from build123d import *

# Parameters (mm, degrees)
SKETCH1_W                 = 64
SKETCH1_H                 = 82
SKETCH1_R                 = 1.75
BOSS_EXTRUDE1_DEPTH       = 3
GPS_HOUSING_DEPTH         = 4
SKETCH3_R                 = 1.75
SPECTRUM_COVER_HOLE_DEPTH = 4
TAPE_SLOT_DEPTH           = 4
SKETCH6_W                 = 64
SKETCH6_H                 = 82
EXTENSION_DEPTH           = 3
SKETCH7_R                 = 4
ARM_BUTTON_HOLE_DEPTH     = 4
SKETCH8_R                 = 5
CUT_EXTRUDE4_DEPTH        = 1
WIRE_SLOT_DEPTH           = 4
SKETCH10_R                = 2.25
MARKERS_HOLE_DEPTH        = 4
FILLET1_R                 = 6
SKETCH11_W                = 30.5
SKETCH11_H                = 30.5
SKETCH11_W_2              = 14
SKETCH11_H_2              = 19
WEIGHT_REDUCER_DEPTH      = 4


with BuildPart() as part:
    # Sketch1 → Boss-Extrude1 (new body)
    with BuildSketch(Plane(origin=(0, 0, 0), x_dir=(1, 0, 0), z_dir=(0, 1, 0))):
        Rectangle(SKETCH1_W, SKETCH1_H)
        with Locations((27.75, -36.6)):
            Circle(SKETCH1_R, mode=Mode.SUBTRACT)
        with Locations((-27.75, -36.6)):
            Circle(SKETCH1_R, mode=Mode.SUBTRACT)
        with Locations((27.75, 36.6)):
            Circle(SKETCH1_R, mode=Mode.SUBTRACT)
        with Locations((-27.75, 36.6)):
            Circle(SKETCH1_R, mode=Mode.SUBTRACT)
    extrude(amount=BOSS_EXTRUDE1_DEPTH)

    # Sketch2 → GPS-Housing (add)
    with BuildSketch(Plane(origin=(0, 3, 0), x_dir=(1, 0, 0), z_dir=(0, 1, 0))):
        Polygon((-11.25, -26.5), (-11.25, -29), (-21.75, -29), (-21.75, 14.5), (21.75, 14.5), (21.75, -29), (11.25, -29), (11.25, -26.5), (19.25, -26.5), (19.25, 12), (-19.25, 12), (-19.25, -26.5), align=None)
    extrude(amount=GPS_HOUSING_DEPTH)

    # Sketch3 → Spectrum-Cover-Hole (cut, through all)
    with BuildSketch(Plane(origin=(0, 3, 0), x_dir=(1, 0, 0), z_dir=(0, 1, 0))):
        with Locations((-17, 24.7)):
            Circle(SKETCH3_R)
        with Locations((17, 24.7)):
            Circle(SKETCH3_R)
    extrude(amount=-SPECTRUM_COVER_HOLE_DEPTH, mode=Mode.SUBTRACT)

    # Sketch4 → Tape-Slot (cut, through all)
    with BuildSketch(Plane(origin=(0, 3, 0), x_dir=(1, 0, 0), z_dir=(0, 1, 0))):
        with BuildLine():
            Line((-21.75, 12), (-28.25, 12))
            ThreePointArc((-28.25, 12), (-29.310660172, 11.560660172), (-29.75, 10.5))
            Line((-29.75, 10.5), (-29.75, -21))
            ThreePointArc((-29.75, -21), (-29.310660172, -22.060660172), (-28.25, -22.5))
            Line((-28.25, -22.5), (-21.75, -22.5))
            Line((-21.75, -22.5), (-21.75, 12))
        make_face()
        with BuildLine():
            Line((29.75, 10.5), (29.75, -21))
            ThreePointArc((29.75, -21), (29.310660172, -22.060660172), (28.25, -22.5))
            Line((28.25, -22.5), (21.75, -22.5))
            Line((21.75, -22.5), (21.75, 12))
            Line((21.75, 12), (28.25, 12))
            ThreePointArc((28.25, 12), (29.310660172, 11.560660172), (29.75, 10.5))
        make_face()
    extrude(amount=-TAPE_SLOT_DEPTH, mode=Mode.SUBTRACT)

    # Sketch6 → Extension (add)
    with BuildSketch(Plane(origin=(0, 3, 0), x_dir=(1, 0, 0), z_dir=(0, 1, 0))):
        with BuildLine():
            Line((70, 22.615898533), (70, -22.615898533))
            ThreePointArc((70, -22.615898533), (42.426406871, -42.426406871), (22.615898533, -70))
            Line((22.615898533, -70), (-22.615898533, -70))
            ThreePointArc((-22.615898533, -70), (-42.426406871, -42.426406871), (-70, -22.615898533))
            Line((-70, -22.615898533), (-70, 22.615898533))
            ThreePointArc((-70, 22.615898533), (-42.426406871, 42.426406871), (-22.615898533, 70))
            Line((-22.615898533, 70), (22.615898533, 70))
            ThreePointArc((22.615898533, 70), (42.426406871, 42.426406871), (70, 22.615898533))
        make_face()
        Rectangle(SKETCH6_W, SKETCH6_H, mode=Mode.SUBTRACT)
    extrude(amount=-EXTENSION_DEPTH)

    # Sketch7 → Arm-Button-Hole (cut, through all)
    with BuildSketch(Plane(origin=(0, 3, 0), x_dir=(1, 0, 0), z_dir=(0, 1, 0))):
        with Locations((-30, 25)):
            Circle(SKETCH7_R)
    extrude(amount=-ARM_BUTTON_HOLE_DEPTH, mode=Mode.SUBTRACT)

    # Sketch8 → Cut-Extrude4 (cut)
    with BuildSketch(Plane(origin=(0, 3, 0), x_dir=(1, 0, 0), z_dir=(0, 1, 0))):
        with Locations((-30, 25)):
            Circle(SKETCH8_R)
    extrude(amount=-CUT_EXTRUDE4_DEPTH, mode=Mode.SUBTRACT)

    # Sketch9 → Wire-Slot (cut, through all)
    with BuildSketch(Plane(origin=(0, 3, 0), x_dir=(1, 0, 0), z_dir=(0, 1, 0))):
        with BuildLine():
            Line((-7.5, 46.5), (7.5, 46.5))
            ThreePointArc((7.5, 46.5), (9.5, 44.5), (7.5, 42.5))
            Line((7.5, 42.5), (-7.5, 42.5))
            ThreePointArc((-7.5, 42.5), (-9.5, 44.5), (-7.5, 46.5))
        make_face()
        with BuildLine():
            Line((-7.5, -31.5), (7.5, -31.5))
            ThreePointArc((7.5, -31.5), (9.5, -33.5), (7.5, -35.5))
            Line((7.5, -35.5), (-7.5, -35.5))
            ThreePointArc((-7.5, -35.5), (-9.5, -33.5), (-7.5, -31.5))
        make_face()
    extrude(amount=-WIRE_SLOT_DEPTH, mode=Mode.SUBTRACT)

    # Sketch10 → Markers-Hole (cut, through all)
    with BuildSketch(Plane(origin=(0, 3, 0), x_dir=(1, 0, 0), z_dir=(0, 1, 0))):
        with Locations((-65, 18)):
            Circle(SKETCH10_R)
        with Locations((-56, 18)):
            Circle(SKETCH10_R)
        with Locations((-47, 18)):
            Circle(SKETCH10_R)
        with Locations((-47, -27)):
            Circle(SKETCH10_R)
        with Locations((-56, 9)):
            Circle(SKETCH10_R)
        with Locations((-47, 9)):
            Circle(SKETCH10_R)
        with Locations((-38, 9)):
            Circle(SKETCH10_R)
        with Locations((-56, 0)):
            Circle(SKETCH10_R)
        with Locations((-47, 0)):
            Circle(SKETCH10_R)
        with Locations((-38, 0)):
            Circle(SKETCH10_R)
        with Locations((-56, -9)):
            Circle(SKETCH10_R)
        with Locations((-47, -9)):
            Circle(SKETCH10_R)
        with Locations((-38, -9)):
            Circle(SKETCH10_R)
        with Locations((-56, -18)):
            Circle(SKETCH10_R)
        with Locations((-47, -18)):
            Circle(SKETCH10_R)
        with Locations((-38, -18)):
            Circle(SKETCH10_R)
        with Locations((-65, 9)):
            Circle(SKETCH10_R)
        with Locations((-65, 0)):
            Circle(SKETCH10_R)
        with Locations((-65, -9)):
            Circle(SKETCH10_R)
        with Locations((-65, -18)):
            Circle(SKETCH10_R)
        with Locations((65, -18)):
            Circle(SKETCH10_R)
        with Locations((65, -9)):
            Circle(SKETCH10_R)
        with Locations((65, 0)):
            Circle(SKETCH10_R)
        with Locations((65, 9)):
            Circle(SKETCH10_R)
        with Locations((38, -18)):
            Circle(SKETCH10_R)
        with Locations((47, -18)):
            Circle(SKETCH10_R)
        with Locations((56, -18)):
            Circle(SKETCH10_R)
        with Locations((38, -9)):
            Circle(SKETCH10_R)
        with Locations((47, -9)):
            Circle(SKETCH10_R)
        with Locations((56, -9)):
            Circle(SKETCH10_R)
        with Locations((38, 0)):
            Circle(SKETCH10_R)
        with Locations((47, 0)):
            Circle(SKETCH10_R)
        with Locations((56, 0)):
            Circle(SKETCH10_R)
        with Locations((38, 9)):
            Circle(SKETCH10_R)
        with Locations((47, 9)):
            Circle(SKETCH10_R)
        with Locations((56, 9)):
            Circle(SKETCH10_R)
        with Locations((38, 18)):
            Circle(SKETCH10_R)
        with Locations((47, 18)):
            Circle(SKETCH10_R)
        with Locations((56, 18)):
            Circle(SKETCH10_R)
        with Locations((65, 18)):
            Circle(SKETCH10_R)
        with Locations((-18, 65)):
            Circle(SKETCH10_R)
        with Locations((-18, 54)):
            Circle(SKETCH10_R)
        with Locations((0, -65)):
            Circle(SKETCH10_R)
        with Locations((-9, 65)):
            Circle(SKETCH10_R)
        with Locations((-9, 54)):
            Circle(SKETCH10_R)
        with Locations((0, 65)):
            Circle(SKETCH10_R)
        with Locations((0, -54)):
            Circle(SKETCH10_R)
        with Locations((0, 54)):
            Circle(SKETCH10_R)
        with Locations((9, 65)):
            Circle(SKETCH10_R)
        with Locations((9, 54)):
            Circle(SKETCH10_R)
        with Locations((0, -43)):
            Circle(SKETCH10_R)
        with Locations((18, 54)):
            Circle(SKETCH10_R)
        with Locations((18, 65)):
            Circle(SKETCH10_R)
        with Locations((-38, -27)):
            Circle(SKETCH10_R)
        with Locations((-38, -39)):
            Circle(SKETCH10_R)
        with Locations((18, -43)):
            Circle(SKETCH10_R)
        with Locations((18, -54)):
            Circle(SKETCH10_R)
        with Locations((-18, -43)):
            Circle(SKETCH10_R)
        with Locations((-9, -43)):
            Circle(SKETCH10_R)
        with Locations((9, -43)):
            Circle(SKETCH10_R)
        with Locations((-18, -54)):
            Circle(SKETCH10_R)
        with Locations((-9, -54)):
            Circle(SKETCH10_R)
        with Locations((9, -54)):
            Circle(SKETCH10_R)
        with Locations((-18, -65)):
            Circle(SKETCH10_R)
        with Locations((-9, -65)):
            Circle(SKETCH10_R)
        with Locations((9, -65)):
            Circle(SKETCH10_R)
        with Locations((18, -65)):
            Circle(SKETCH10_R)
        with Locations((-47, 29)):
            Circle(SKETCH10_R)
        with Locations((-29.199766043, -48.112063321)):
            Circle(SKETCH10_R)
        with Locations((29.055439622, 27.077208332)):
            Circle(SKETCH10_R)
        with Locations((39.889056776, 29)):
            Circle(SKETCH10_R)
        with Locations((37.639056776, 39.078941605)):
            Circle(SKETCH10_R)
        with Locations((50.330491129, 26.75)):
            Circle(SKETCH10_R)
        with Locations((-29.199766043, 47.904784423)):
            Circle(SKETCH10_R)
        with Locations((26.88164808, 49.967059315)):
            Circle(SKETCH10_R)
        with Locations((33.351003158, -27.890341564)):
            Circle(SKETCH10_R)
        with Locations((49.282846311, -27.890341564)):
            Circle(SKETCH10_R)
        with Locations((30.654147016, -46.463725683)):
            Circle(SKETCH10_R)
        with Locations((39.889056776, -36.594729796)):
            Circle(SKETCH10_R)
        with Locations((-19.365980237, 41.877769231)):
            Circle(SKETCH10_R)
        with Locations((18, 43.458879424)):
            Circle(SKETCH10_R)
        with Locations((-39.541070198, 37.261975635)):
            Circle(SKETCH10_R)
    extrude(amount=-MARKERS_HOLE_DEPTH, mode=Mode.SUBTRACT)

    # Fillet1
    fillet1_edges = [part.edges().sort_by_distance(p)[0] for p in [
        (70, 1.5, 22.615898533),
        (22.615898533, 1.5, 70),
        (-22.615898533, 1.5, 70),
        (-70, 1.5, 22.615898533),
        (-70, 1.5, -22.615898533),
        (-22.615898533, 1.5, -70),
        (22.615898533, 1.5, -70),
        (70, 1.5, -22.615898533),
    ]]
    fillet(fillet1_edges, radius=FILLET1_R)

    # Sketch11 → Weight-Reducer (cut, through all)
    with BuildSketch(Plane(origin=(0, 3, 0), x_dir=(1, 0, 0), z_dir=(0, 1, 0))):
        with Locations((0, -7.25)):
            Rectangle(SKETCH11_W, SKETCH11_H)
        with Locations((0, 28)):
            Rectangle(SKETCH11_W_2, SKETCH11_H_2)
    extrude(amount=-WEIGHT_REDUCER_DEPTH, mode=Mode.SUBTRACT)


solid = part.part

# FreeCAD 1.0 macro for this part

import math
import FreeCAD as App
import Part
import Sketcher
from FreeCAD import Vector
Q = App.Units.Quantity


def edges_at(feature, points):
    """Names of the edges that pass closest to the given points."""
    edges = feature.Shape.Edges
    near = lambda p: min(range(len(edges)), key=lambda i: edges[i].distToShape(Part.Vertex(*p))[0])
    return sorted({f"Edge{near(p) + 1}" for p in points})

doc = App.newDocument("Part")
body = doc.addObject("PartDesign::Body", "Body")

sketch1 = body.newObject("Sketcher::SketchObject", "Sketch")
sketch1.AttachmentSupport = (doc.getObject("XZ_Plane"), [""])
sketch1.MapMode = "FlatFace"
sketch1.addGeometry([
    Part.LineSegment(Vector(-32, -41, 0), Vector(-32, 41, 0)),
    Part.LineSegment(Vector(-32, 41, 0), Vector(32, 41, 0)),
    Part.LineSegment(Vector(32, 41, 0), Vector(32, -41, 0)),
    Part.LineSegment(Vector(32, -41, 0), Vector(-32, -41, 0)),
    Part.Circle(Vector(-27.8, 36.6, 0), Vector(0, 0, 1), 1.8),
    Part.Circle(Vector(27.8, 36.6, 0), Vector(0, 0, 1), 1.8),
    Part.Circle(Vector(-27.8, -36.6, 0), Vector(0, 0, 1), 1.8),
    Part.Circle(Vector(27.8, -36.6, 0), Vector(0, 0, 1), 1.8),
], False)
sketch1.addConstraint([
    Sketcher.Constraint("Coincident", 0, 2, 1, 1),
    Sketcher.Constraint("Coincident", 1, 2, 2, 1),
    Sketcher.Constraint("Coincident", 2, 2, 3, 1),
    Sketcher.Constraint("Coincident", 3, 2, 0, 1),
    Sketcher.Constraint("Vertical", 0),
    Sketcher.Constraint("Horizontal", 1),
    Sketcher.Constraint("Vertical", 2),
    Sketcher.Constraint("Horizontal", 3),
    Sketcher.Constraint("Equal", 4, 5),
    Sketcher.Constraint("Equal", 5, 6),
    Sketcher.Constraint("Equal", 6, 7),
    Sketcher.Constraint("Symmetric", 5, 3, 6, 3, -1, 1),
    Sketcher.Constraint("Symmetric", 4, 3, 7, 3, -1, 1),
    Sketcher.Constraint("Symmetric", 0, 2, 2, 2, -1, 1),
    Sketcher.Constraint("Symmetric", 4, 3, 5, 3, -2),
    Sketcher.Constraint("Diameter", 4, Q("3.5 mm")),
    Sketcher.Constraint("DistanceX", 1, 1, 1, 2, Q("64 mm")),
    Sketcher.Constraint("DistanceY", 0, 1, 0, 2, Q("82 mm")),
    Sketcher.Constraint("DistanceY", -1, 1, 4, 3, Q("36.6 mm")),
    Sketcher.Constraint("DistanceX", 4, 3, 5, 3, Q("55.5 mm")),
])
pad1 = body.newObject("PartDesign::Pad", "Pad")
pad1.Profile = sketch1
pad1.Length = 3
pad1.Reversed = True

sketch2 = body.newObject("Sketcher::SketchObject", "Sketch001")
sketch2.AttachmentSupport = (doc.getObject("XZ_Plane"), [""])
sketch2.MapMode = "FlatFace"
sketch2.AttachmentOffset = App.Placement(Vector(0, 0, -3), App.Rotation())
sketch2.addGeometry([
    Part.LineSegment(Vector(-11.2, 29, 0), Vector(-11.2, 26.5, 0)),
    Part.LineSegment(Vector(-11.2, 26.5, 0), Vector(-19.2, 26.5, 0)),
    Part.LineSegment(Vector(-19.2, 26.5, 0), Vector(-19.2, -12, 0)),
    Part.LineSegment(Vector(-19.2, -12, 0), Vector(19.2, -12, 0)),
    Part.LineSegment(Vector(19.2, -12, 0), Vector(19.2, 26.5, 0)),
    Part.LineSegment(Vector(19.2, 26.5, 0), Vector(11.2, 26.5, 0)),
    Part.LineSegment(Vector(11.2, 26.5, 0), Vector(11.2, 29, 0)),
    Part.LineSegment(Vector(11.2, 29, 0), Vector(21.8, 29, 0)),
    Part.LineSegment(Vector(21.8, 29, 0), Vector(21.8, -14.5, 0)),
    Part.LineSegment(Vector(21.8, -14.5, 0), Vector(-21.8, -14.5, 0)),
    Part.LineSegment(Vector(-21.8, -14.5, 0), Vector(-21.8, 29, 0)),
    Part.LineSegment(Vector(-21.8, 29, 0), Vector(-11.2, 29, 0)),
], False)
sketch2.addConstraint([
    Sketcher.Constraint("Coincident", 0, 2, 1, 1),
    Sketcher.Constraint("Coincident", 1, 2, 2, 1),
    Sketcher.Constraint("Coincident", 2, 2, 3, 1),
    Sketcher.Constraint("Coincident", 3, 2, 4, 1),
    Sketcher.Constraint("Coincident", 4, 2, 5, 1),
    Sketcher.Constraint("Coincident", 5, 2, 6, 1),
    Sketcher.Constraint("Coincident", 6, 2, 7, 1),
    Sketcher.Constraint("Coincident", 7, 2, 8, 1),
    Sketcher.Constraint("Coincident", 8, 2, 9, 1),
    Sketcher.Constraint("Coincident", 9, 2, 10, 1),
    Sketcher.Constraint("Coincident", 10, 2, 11, 1),
    Sketcher.Constraint("Coincident", 11, 2, 0, 1),
    Sketcher.Constraint("Vertical", 0),
    Sketcher.Constraint("Horizontal", 1),
    Sketcher.Constraint("Vertical", 2),
    Sketcher.Constraint("Horizontal", 3),
    Sketcher.Constraint("Vertical", 4),
    Sketcher.Constraint("Horizontal", 5),
    Sketcher.Constraint("Vertical", 6),
    Sketcher.Constraint("Horizontal", 7),
    Sketcher.Constraint("Vertical", 8),
    Sketcher.Constraint("Horizontal", 9),
    Sketcher.Constraint("Vertical", 10),
    Sketcher.Constraint("Horizontal", 11),
    Sketcher.Constraint("Symmetric", 1, 2, 4, 2, -2),
    Sketcher.Constraint("Symmetric", 7, 2, 10, 2, -2),
    Sketcher.Constraint("Equal", 1, 5),
    Sketcher.Constraint("Equal", 3, 2),
    Sketcher.Constraint("Equal", 9, 8),
    Sketcher.Constraint("DistanceX", 1, 2, 1, 1, Q("8 mm")),
    Sketcher.Constraint("DistanceX", 3, 1, 3, 2, Q("38.5 mm")),
    Sketcher.Constraint("DistanceX", 7, 1, 7, 2, Q("10.5 mm")),
    Sketcher.Constraint("DistanceY", 0, 2, 0, 1, Q("2.5 mm")),
    Sketcher.Constraint("DistanceY", 2, 2, -1, 1, Q("12 mm")),
])
pad2 = body.newObject("PartDesign::Pad", "Pad001")
pad2.Profile = sketch2
pad2.Length = 4
pad2.Reversed = True

sketch3 = body.newObject("Sketcher::SketchObject", "Sketch002")
sketch3.AttachmentSupport = (doc.getObject("XZ_Plane"), [""])
sketch3.MapMode = "FlatFace"
sketch3.AttachmentOffset = App.Placement(Vector(0, 0, -3), App.Rotation())
sketch3.addGeometry([
    Part.Circle(Vector(-17, -24.7, 0), Vector(0, 0, 1), 1.8),
    Part.Circle(Vector(17, -24.7, 0), Vector(0, 0, 1), 1.8),
], False)
sketch3.addConstraint([
    Sketcher.Constraint("Equal", 0, 1),
    Sketcher.Constraint("Symmetric", 0, 3, 1, 3, -2),
    Sketcher.Constraint("Diameter", 0, Q("3.5 mm")),
    Sketcher.Constraint("DistanceX", 0, 3, -1, 1, Q("17 mm")),
    Sketcher.Constraint("DistanceY", 0, 3, -1, 1, Q("24.7 mm")),
])
pocket1 = body.newObject("PartDesign::Pocket", "Pocket")
pocket1.Profile = sketch3
pocket1.Type = "ThroughAll"
pocket1.Reversed = True

sketch4 = body.newObject("Sketcher::SketchObject", "Sketch003")
sketch4.AttachmentSupport = (doc.getObject("XZ_Plane"), [""])
sketch4.MapMode = "FlatFace"
sketch4.AttachmentOffset = App.Placement(Vector(0, 0, -3), App.Rotation())
sketch4.addGeometry([
    Part.LineSegment(Vector(-21.8, -12, 0), Vector(-28.2, -12, 0)),
    Part.ArcOfCircle(Part.Circle(Vector(-28.3, -10.5, 0), Vector(0, 0, 1), 1.5), math.radians(180), math.radians(270)),
    Part.LineSegment(Vector(-29.8, -10.5, 0), Vector(-29.8, 21, 0)),
    Part.ArcOfCircle(Part.Circle(Vector(-28.3, 21, 0), Vector(0, 0, 1), 1.5), math.radians(90), math.radians(180)),
    Part.LineSegment(Vector(-28.2, 22.5, 0), Vector(-21.8, 22.5, 0)),
    Part.LineSegment(Vector(-21.8, 22.5, 0), Vector(-21.8, -12, 0)),
    Part.LineSegment(Vector(29.8, 21, 0), Vector(29.8, -10.5, 0)),
    Part.ArcOfCircle(Part.Circle(Vector(28.3, -10.5, 0), Vector(0, 0, 1), 1.5), math.radians(-90), math.radians(0)),
    Part.LineSegment(Vector(28.2, -12, 0), Vector(21.8, -12, 0)),
    Part.LineSegment(Vector(21.8, -12, 0), Vector(21.8, 22.5, 0)),
    Part.LineSegment(Vector(21.8, 22.5, 0), Vector(28.2, 22.5, 0)),
    Part.ArcOfCircle(Part.Circle(Vector(28.3, 21, 0), Vector(0, 0, 1), 1.5), math.radians(0), math.radians(90)),
], False)
sketch4.addConstraint([
    Sketcher.Constraint("Tangent", 0, 2, 1, 2),
    Sketcher.Constraint("Tangent", 1, 1, 2, 1),
    Sketcher.Constraint("Tangent", 2, 2, 3, 2),
    Sketcher.Constraint("Tangent", 3, 1, 4, 1),
    Sketcher.Constraint("Coincident", 4, 2, 5, 1),
    Sketcher.Constraint("Coincident", 5, 2, 0, 1),
    Sketcher.Constraint("Tangent", 6, 2, 7, 2),
    Sketcher.Constraint("Tangent", 7, 1, 8, 1),
    Sketcher.Constraint("Coincident", 8, 2, 9, 1),
    Sketcher.Constraint("Coincident", 9, 2, 10, 1),
    Sketcher.Constraint("Tangent", 10, 2, 11, 2),
    Sketcher.Constraint("Tangent", 11, 1, 6, 1),
    Sketcher.Constraint("Horizontal", 0),
    Sketcher.Constraint("Vertical", 2),
    Sketcher.Constraint("Horizontal", 4),
    Sketcher.Constraint("Vertical", 5),
    Sketcher.Constraint("Vertical", 6),
    Sketcher.Constraint("Horizontal", 8),
    Sketcher.Constraint("Vertical", 9),
    Sketcher.Constraint("Horizontal", 10),
    Sketcher.Constraint("Equal", 1, 3),
    Sketcher.Constraint("Equal", 3, 7),
    Sketcher.Constraint("Equal", 7, 11),
    Sketcher.Constraint("Symmetric", 1, 3, 7, 3, -2),
    Sketcher.Constraint("Symmetric", 4, 2, 9, 2, -2),
    Sketcher.Constraint("Radius", 1, Q("1.5 mm")),
    Sketcher.Constraint("DistanceX", 0, 2, 0, 1, Q("6.5 mm")),
    Sketcher.Constraint("DistanceY", 2, 1, 2, 2, Q("31.5 mm")),
    Sketcher.Constraint("DistanceY", -1, 1, 3, 3, Q("21 mm")),
    Sketcher.Constraint("DistanceX", 1, 1, 7, 3, Q("58 mm")),
])
pocket2 = body.newObject("PartDesign::Pocket", "Pocket001")
pocket2.Profile = sketch4
pocket2.Type = "ThroughAll"
pocket2.Reversed = True

sketch5 = body.newObject("Sketcher::SketchObject", "Sketch004")
sketch5.AttachmentSupport = (doc.getObject("XZ_Plane"), [""])
sketch5.MapMode = "FlatFace"
sketch5.AttachmentOffset = App.Placement(Vector(0, 0, -3), App.Rotation())
sketch5.addGeometry([
    Part.LineSegment(Vector(70, 23, 0), Vector(70, -23, 0)),
    Part.ArcOfCircle(Part.Circle(Vector(117, -117, 0), Vector(0, 0, 1), 105), math.radians(116), math.radians(154)),
    Part.LineSegment(Vector(23, -70, 0), Vector(-23, -70, 0)),
    Part.ArcOfCircle(Part.Circle(Vector(-117, -117, 0), Vector(0, 0, 1), 105), math.radians(26), math.radians(64)),
    Part.LineSegment(Vector(-70, -23, 0), Vector(-70, 23, 0)),
    Part.ArcOfCircle(Part.Circle(Vector(-117, 117, 0), Vector(0, 0, 1), 105), math.radians(-64), math.radians(-26)),
    Part.LineSegment(Vector(-23, 70, 0), Vector(23, 70, 0)),
    Part.ArcOfCircle(Part.Circle(Vector(117, 117, 0), Vector(0, 0, 1), 105), math.radians(-154), math.radians(-116)),
    Part.LineSegment(Vector(-32, 41, 0), Vector(-32, -41, 0)),
    Part.LineSegment(Vector(-32, -41, 0), Vector(32, -41, 0)),
    Part.LineSegment(Vector(32, -41, 0), Vector(32, 41, 0)),
    Part.LineSegment(Vector(32, 41, 0), Vector(-32, 41, 0)),
], False)
sketch5.addConstraint([
    Sketcher.Constraint("Coincident", 0, 2, 1, 1),
    Sketcher.Constraint("Coincident", 1, 2, 2, 1),
    Sketcher.Constraint("Coincident", 2, 2, 3, 1),
    Sketcher.Constraint("Coincident", 3, 2, 4, 1),
    Sketcher.Constraint("Coincident", 4, 2, 5, 1),
    Sketcher.Constraint("Coincident", 5, 2, 6, 1),
    Sketcher.Constraint("Coincident", 6, 2, 7, 1),
    Sketcher.Constraint("Coincident", 7, 2, 0, 1),
    Sketcher.Constraint("Coincident", 8, 2, 9, 1),
    Sketcher.Constraint("Coincident", 9, 2, 10, 1),
    Sketcher.Constraint("Coincident", 10, 2, 11, 1),
    Sketcher.Constraint("Coincident", 11, 2, 8, 1),
    Sketcher.Constraint("Vertical", 0),
    Sketcher.Constraint("Horizontal", 2),
    Sketcher.Constraint("Vertical", 4),
    Sketcher.Constraint("Horizontal", 6),
    Sketcher.Constraint("Vertical", 8),
    Sketcher.Constraint("Horizontal", 9),
    Sketcher.Constraint("Vertical", 10),
    Sketcher.Constraint("Horizontal", 11),
    Sketcher.Constraint("Equal", 1, 3),
    Sketcher.Constraint("Equal", 3, 5),
    Sketcher.Constraint("Equal", 5, 7),
    Sketcher.Constraint("Symmetric", 1, 3, 5, 3, -1, 1),
    Sketcher.Constraint("Symmetric", 3, 3, 7, 3, -1, 1),
    Sketcher.Constraint("Symmetric", 8, 2, 10, 2, -1, 1),
    Sketcher.Constraint("Symmetric", 1, 3, 3, 3, -2),
    Sketcher.Constraint("Horizontal", 0, 2, 3, 2),
    Sketcher.Constraint("Vertical", 2, 2, 5, 2),
    Sketcher.Constraint("Equal", 6, 0),
    Sketcher.Constraint("Radius", 1, Q("105 mm")),
    Sketcher.Constraint("DistanceX", 9, 1, 9, 2, Q("64 mm")),
    Sketcher.Constraint("DistanceY", 8, 2, 8, 1, Q("82 mm")),
    Sketcher.Constraint("DistanceX", -1, 1, 0, 2, Q("70 mm")),
    Sketcher.Constraint("DistanceY", 1, 2, -1, 1, Q("70 mm")),
    Sketcher.Constraint("DistanceY", 0, 2, -1, 1, Q("22.615899 mm")),
])
pad3 = body.newObject("PartDesign::Pad", "Pad002")
pad3.Profile = sketch5
pad3.Length = 3

sketch6 = body.newObject("Sketcher::SketchObject", "Sketch005")
sketch6.AttachmentSupport = (doc.getObject("XZ_Plane"), [""])
sketch6.MapMode = "FlatFace"
sketch6.AttachmentOffset = App.Placement(Vector(0, 0, -3), App.Rotation())
sketch6.addGeometry(Part.Circle(Vector(-30, -25, 0), Vector(0, 0, 1), 4), False)
sketch6.addConstraint([
    Sketcher.Constraint("Diameter", 0, Q("8 mm")),
    Sketcher.Constraint("DistanceX", 0, 3, -1, 1, Q("30 mm")),
    Sketcher.Constraint("DistanceY", 0, 3, -1, 1, Q("25 mm")),
])
pocket3 = body.newObject("PartDesign::Pocket", "Pocket002")
pocket3.Profile = sketch6
pocket3.Type = "ThroughAll"
pocket3.Reversed = True

sketch7 = body.newObject("Sketcher::SketchObject", "Sketch006")
sketch7.AttachmentSupport = (doc.getObject("XZ_Plane"), [""])
sketch7.MapMode = "FlatFace"
sketch7.AttachmentOffset = App.Placement(Vector(0, 0, -3), App.Rotation())
sketch7.addGeometry(Part.Circle(Vector(-30, -25, 0), Vector(0, 0, 1), 5), False)
sketch7.addConstraint([
    Sketcher.Constraint("Diameter", 0, Q("10 mm")),
    Sketcher.Constraint("DistanceX", 0, 3, -1, 1, Q("30 mm")),
    Sketcher.Constraint("DistanceY", 0, 3, -1, 1, Q("25 mm")),
])
pocket4 = body.newObject("PartDesign::Pocket", "Pocket003")
pocket4.Profile = sketch7
pocket4.Length = 1
pocket4.Reversed = True

sketch8 = body.newObject("Sketcher::SketchObject", "Sketch007")
sketch8.AttachmentSupport = (doc.getObject("XZ_Plane"), [""])
sketch8.MapMode = "FlatFace"
sketch8.AttachmentOffset = App.Placement(Vector(0, 0, -3), App.Rotation())
sketch8.addGeometry([
    Part.LineSegment(Vector(7.5, -46.5, 0), Vector(-7.5, -46.5, 0)),
    Part.ArcOfCircle(Part.Circle(Vector(-7.5, -44.5, 0), Vector(0, 0, 1), 2), math.radians(90), math.radians(270)),
    Part.LineSegment(Vector(-7.5, -42.5, 0), Vector(7.5, -42.5, 0)),
    Part.ArcOfCircle(Part.Circle(Vector(7.5, -44.5, 0), Vector(0, 0, 1), 2), math.radians(-90), math.radians(90)),
    Part.LineSegment(Vector(7.5, 31.5, 0), Vector(-7.5, 31.5, 0)),
    Part.ArcOfCircle(Part.Circle(Vector(-7.5, 33.5, 0), Vector(0, 0, 1), 2), math.radians(90), math.radians(270)),
    Part.LineSegment(Vector(-7.5, 35.5, 0), Vector(7.5, 35.5, 0)),
    Part.ArcOfCircle(Part.Circle(Vector(7.5, 33.5, 0), Vector(0, 0, 1), 2), math.radians(-90), math.radians(90)),
], False)
sketch8.addConstraint([
    Sketcher.Constraint("Tangent", 0, 2, 1, 2),
    Sketcher.Constraint("Tangent", 1, 1, 2, 1),
    Sketcher.Constraint("Tangent", 2, 2, 3, 2),
    Sketcher.Constraint("Tangent", 3, 1, 0, 1),
    Sketcher.Constraint("Tangent", 4, 2, 5, 2),
    Sketcher.Constraint("Tangent", 5, 1, 6, 1),
    Sketcher.Constraint("Tangent", 6, 2, 7, 2),
    Sketcher.Constraint("Tangent", 7, 1, 4, 1),
    Sketcher.Constraint("Horizontal", 0),
    Sketcher.Constraint("Horizontal", 2),
    Sketcher.Constraint("Horizontal", 4),
    Sketcher.Constraint("Horizontal", 6),
    Sketcher.Constraint("Equal", 3, 5),
    Sketcher.Constraint("Vertical", 1, 3, 5, 3),
    Sketcher.Constraint("Vertical", 3, 3, 7, 3),
    Sketcher.Constraint("Radius", 1, Q("2 mm")),
    Sketcher.Constraint("DistanceX", 0, 2, 0, 1, Q("15 mm")),
    Sketcher.Constraint("DistanceY", 1, 3, 5, 3, Q("78 mm")),
    Sketcher.Constraint("DistanceX", 1, 3, -1, 1, Q("7.5 mm")),
    Sketcher.Constraint("DistanceY", 1, 3, -1, 1, Q("44.5 mm")),
])
pocket5 = body.newObject("PartDesign::Pocket", "Pocket004")
pocket5.Profile = sketch8
pocket5.Type = "ThroughAll"
pocket5.Reversed = True

sketch9 = body.newObject("Sketcher::SketchObject", "Sketch008")
sketch9.AttachmentSupport = (doc.getObject("XZ_Plane"), [""])
sketch9.MapMode = "FlatFace"
sketch9.AttachmentOffset = App.Placement(Vector(0, 0, -3), App.Rotation())
sketch9.addGeometry([
    Part.Circle(Vector(-65, -18, 0), Vector(0, 0, 1), 2.2),
    Part.Circle(Vector(-56, -18, 0), Vector(0, 0, 1), 2.2),
    Part.Circle(Vector(-47, -18, 0), Vector(0, 0, 1), 2.2),
    Part.Circle(Vector(-47, 27, 0), Vector(0, 0, 1), 2.2),
    Part.Circle(Vector(-56, -9, 0), Vector(0, 0, 1), 2.2),
    Part.Circle(Vector(-47, -9, 0), Vector(0, 0, 1), 2.2),
    Part.Circle(Vector(-38, -9, 0), Vector(0, 0, 1), 2.2),
    Part.Circle(Vector(-56, 0, 0), Vector(0, 0, 1), 2.2),
    Part.Circle(Vector(-47, 0, 0), Vector(0, 0, 1), 2.2),
    Part.Circle(Vector(-38, 0, 0), Vector(0, 0, 1), 2.2),
    Part.Circle(Vector(-56, 9, 0), Vector(0, 0, 1), 2.2),
    Part.Circle(Vector(-47, 9, 0), Vector(0, 0, 1), 2.2),
    Part.Circle(Vector(-38, 9, 0), Vector(0, 0, 1), 2.2),
    Part.Circle(Vector(-56, 18, 0), Vector(0, 0, 1), 2.2),
    Part.Circle(Vector(-47, 18, 0), Vector(0, 0, 1), 2.2),
    Part.Circle(Vector(-38, 18, 0), Vector(0, 0, 1), 2.2),
    Part.Circle(Vector(-65, -9, 0), Vector(0, 0, 1), 2.2),
    Part.Circle(Vector(-65, 0, 0), Vector(0, 0, 1), 2.2),
    Part.Circle(Vector(-65, 9, 0), Vector(0, 0, 1), 2.2),
    Part.Circle(Vector(-65, 18, 0), Vector(0, 0, 1), 2.2),
    Part.Circle(Vector(65, 18, 0), Vector(0, 0, 1), 2.2),
    Part.Circle(Vector(65, 9, 0), Vector(0, 0, 1), 2.2),
    Part.Circle(Vector(65, 0, 0), Vector(0, 0, 1), 2.2),
    Part.Circle(Vector(65, -9, 0), Vector(0, 0, 1), 2.2),
    Part.Circle(Vector(38, 18, 0), Vector(0, 0, 1), 2.2),
    Part.Circle(Vector(47, 18, 0), Vector(0, 0, 1), 2.2),
    Part.Circle(Vector(56, 18, 0), Vector(0, 0, 1), 2.2),
    Part.Circle(Vector(38, 9, 0), Vector(0, 0, 1), 2.2),
    Part.Circle(Vector(47, 9, 0), Vector(0, 0, 1), 2.2),
    Part.Circle(Vector(56, 9, 0), Vector(0, 0, 1), 2.2),
    Part.Circle(Vector(38, 0, 0), Vector(0, 0, 1), 2.2),
    Part.Circle(Vector(47, 0, 0), Vector(0, 0, 1), 2.2),
    Part.Circle(Vector(56, 0, 0), Vector(0, 0, 1), 2.2),
    Part.Circle(Vector(38, -9, 0), Vector(0, 0, 1), 2.2),
    Part.Circle(Vector(47, -9, 0), Vector(0, 0, 1), 2.2),
    Part.Circle(Vector(56, -9, 0), Vector(0, 0, 1), 2.2),
    Part.Circle(Vector(38, -18, 0), Vector(0, 0, 1), 2.2),
    Part.Circle(Vector(47, -18, 0), Vector(0, 0, 1), 2.2),
    Part.Circle(Vector(56, -18, 0), Vector(0, 0, 1), 2.2),
    Part.Circle(Vector(65, -18, 0), Vector(0, 0, 1), 2.2),
    Part.Circle(Vector(-18, -65, 0), Vector(0, 0, 1), 2.2),
    Part.Circle(Vector(-18, -54, 0), Vector(0, 0, 1), 2.2),
    Part.Circle(Vector(0, 65, 0), Vector(0, 0, 1), 2.2),
    Part.Circle(Vector(-9, -65, 0), Vector(0, 0, 1), 2.2),
    Part.Circle(Vector(-9, -54, 0), Vector(0, 0, 1), 2.2),
    Part.Circle(Vector(0, -65, 0), Vector(0, 0, 1), 2.2),
    Part.Circle(Vector(0, 54, 0), Vector(0, 0, 1), 2.2),
    Part.Circle(Vector(0, -54, 0), Vector(0, 0, 1), 2.2),
    Part.Circle(Vector(9, -65, 0), Vector(0, 0, 1), 2.2),
    Part.Circle(Vector(9, -54, 0), Vector(0, 0, 1), 2.2),
    Part.Circle(Vector(0, 43, 0), Vector(0, 0, 1), 2.2),
    Part.Circle(Vector(18, -54, 0), Vector(0, 0, 1), 2.2),
    Part.Circle(Vector(18, -65, 0), Vector(0, 0, 1), 2.2),
    Part.Circle(Vector(-38, 27, 0), Vector(0, 0, 1), 2.2),
    Part.Circle(Vector(-38, 39, 0), Vector(0, 0, 1), 2.2),
    Part.Circle(Vector(18, 43, 0), Vector(0, 0, 1), 2.2),
    Part.Circle(Vector(18, 54, 0), Vector(0, 0, 1), 2.2),
    Part.Circle(Vector(-18, 43, 0), Vector(0, 0, 1), 2.2),
    Part.Circle(Vector(-9, 43, 0), Vector(0, 0, 1), 2.2),
    Part.Circle(Vector(9, 43, 0), Vector(0, 0, 1), 2.2),
    Part.Circle(Vector(-18, 54, 0), Vector(0, 0, 1), 2.2),
    Part.Circle(Vector(-9, 54, 0), Vector(0, 0, 1), 2.2),
    Part.Circle(Vector(9, 54, 0), Vector(0, 0, 1), 2.2),
    Part.Circle(Vector(-18, 65, 0), Vector(0, 0, 1), 2.2),
    Part.Circle(Vector(-9, 65, 0), Vector(0, 0, 1), 2.2),
    Part.Circle(Vector(9, 65, 0), Vector(0, 0, 1), 2.2),
    Part.Circle(Vector(18, 65, 0), Vector(0, 0, 1), 2.2),
    Part.Circle(Vector(-47, -29, 0), Vector(0, 0, 1), 2.2),
    Part.Circle(Vector(-29.2, 48.1, 0), Vector(0, 0, 1), 2.2),
    Part.Circle(Vector(29.1, -27.1, 0), Vector(0, 0, 1), 2.2),
    Part.Circle(Vector(39.9, -29, 0), Vector(0, 0, 1), 2.2),
    Part.Circle(Vector(37.6, -39.1, 0), Vector(0, 0, 1), 2.2),
    Part.Circle(Vector(50.3, -26.8, 0), Vector(0, 0, 1), 2.2),
    Part.Circle(Vector(-29.2, -47.9, 0), Vector(0, 0, 1), 2.2),
    Part.Circle(Vector(26.9, -50, 0), Vector(0, 0, 1), 2.2),
    Part.Circle(Vector(33.4, 27.9, 0), Vector(0, 0, 1), 2.2),
    Part.Circle(Vector(49.3, 27.9, 0), Vector(0, 0, 1), 2.2),
    Part.Circle(Vector(30.7, 46.5, 0), Vector(0, 0, 1), 2.2),
    Part.Circle(Vector(39.9, 36.6, 0), Vector(0, 0, 1), 2.2),
    Part.Circle(Vector(-19.4, -41.9, 0), Vector(0, 0, 1), 2.2),
    Part.Circle(Vector(18, -43.5, 0), Vector(0, 0, 1), 2.2),
    Part.Circle(Vector(-39.5, -37.3, 0), Vector(0, 0, 1), 2.2),
], False)
sketch9.addConstraint([
    Sketcher.Constraint("Equal", 0, 1),
    Sketcher.Constraint("Equal", 1, 2),
    Sketcher.Constraint("Equal", 2, 3),
    Sketcher.Constraint("Equal", 3, 4),
    Sketcher.Constraint("Equal", 4, 5),
    Sketcher.Constraint("Equal", 5, 6),
    Sketcher.Constraint("Equal", 6, 7),
    Sketcher.Constraint("Equal", 7, 8),
    Sketcher.Constraint("Equal", 8, 9),
    Sketcher.Constraint("Equal", 9, 10),
    Sketcher.Constraint("Equal", 10, 11),
    Sketcher.Constraint("Equal", 11, 12),
    Sketcher.Constraint("Equal", 12, 13),
    Sketcher.Constraint("Equal", 13, 14),
    Sketcher.Constraint("Equal", 14, 15),
    Sketcher.Constraint("Equal", 15, 16),
    Sketcher.Constraint("Equal", 16, 17),
    Sketcher.Constraint("Equal", 17, 18),
    Sketcher.Constraint("Equal", 18, 19),
    Sketcher.Constraint("Equal", 19, 20),
    Sketcher.Constraint("Equal", 20, 21),
    Sketcher.Constraint("Equal", 21, 22),
    Sketcher.Constraint("Equal", 22, 23),
    Sketcher.Constraint("Equal", 23, 24),
    Sketcher.Constraint("Equal", 24, 25),
    Sketcher.Constraint("Equal", 25, 26),
    Sketcher.Constraint("Equal", 26, 27),
    Sketcher.Constraint("Equal", 27, 28),
    Sketcher.Constraint("Equal", 28, 29),
    Sketcher.Constraint("Equal", 29, 30),
    Sketcher.Constraint("Equal", 30, 31),
    Sketcher.Constraint("Equal", 31, 32),
    Sketcher.Constraint("Equal", 32, 33),
    Sketcher.Constraint("Equal", 33, 34),
    Sketcher.Constraint("Equal", 34, 35),
    Sketcher.Constraint("Equal", 35, 36),
    Sketcher.Constraint("Equal", 36, 37),
    Sketcher.Constraint("Equal", 37, 38),
    Sketcher.Constraint("Equal", 38, 39),
    Sketcher.Constraint("Equal", 39, 40),
    Sketcher.Constraint("Equal", 40, 41),
    Sketcher.Constraint("Equal", 41, 42),
    Sketcher.Constraint("Equal", 42, 43),
    Sketcher.Constraint("Equal", 43, 44),
    Sketcher.Constraint("Equal", 44, 45),
    Sketcher.Constraint("Equal", 45, 46),
    Sketcher.Constraint("Equal", 46, 47),
    Sketcher.Constraint("Equal", 47, 48),
    Sketcher.Constraint("Equal", 48, 49),
    Sketcher.Constraint("Equal", 49, 50),
    Sketcher.Constraint("Equal", 50, 51),
    Sketcher.Constraint("Equal", 51, 52),
    Sketcher.Constraint("Equal", 52, 53),
    Sketcher.Constraint("Equal", 53, 54),
    Sketcher.Constraint("Equal", 54, 55),
    Sketcher.Constraint("Equal", 55, 56),
    Sketcher.Constraint("Equal", 56, 57),
    Sketcher.Constraint("Equal", 57, 58),
    Sketcher.Constraint("Equal", 58, 59),
    Sketcher.Constraint("Equal", 59, 60),
    Sketcher.Constraint("Equal", 60, 61),
    Sketcher.Constraint("Equal", 61, 62),
    Sketcher.Constraint("Equal", 62, 63),
    Sketcher.Constraint("Equal", 63, 64),
    Sketcher.Constraint("Equal", 64, 65),
    Sketcher.Constraint("Equal", 65, 66),
    Sketcher.Constraint("Equal", 66, 67),
    Sketcher.Constraint("Equal", 67, 68),
    Sketcher.Constraint("Equal", 68, 69),
    Sketcher.Constraint("Equal", 69, 70),
    Sketcher.Constraint("Equal", 70, 71),
    Sketcher.Constraint("Equal", 71, 72),
    Sketcher.Constraint("Equal", 72, 73),
    Sketcher.Constraint("Equal", 73, 74),
    Sketcher.Constraint("Equal", 74, 75),
    Sketcher.Constraint("Equal", 75, 76),
    Sketcher.Constraint("Equal", 76, 77),
    Sketcher.Constraint("Equal", 77, 78),
    Sketcher.Constraint("Equal", 78, 79),
    Sketcher.Constraint("Equal", 79, 80),
    Sketcher.Constraint("Equal", 80, 81),
    Sketcher.Constraint("Symmetric", 0, 3, 20, 3, -1, 1),
    Sketcher.Constraint("Symmetric", 16, 3, 21, 3, -1, 1),
    Sketcher.Constraint("Symmetric", 17, 3, 22, 3, -1, 1),
    Sketcher.Constraint("Symmetric", 18, 3, 23, 3, -1, 1),
    Sketcher.Constraint("Symmetric", 2, 3, 25, 3, -1, 1),
    Sketcher.Constraint("Symmetric", 1, 3, 26, 3, -1, 1),
    Sketcher.Constraint("Symmetric", 6, 3, 27, 3, -1, 1),
    Sketcher.Constraint("Symmetric", 5, 3, 28, 3, -1, 1),
    Sketcher.Constraint("Symmetric", 4, 3, 29, 3, -1, 1),
    Sketcher.Constraint("Symmetric", 9, 3, 30, 3, -1, 1),
    Sketcher.Constraint("Symmetric", 8, 3, 31, 3, -1, 1),
    Sketcher.Constraint("Symmetric", 7, 3, 32, 3, -1, 1),
    Sketcher.Constraint("Symmetric", 12, 3, 33, 3, -1, 1),
    Sketcher.Constraint("Symmetric", 11, 3, 34, 3, -1, 1),
    Sketcher.Constraint("Symmetric", 10, 3, 35, 3, -1, 1),
    Sketcher.Constraint("Symmetric", 15, 3, 36, 3, -1, 1),
    Sketcher.Constraint("Symmetric", 14, 3, 37, 3, -1, 1),
    Sketcher.Constraint("Symmetric", 13, 3, 38, 3, -1, 1),
    Sketcher.Constraint("Symmetric", 19, 3, 39, 3, -1, 1),
    Sketcher.Constraint("Symmetric", 42, 3, 45, 3, -1, 1),
    Sketcher.Constraint("Symmetric", 46, 3, 47, 3, -1, 1),
    Sketcher.Constraint("Symmetric", 41, 3, 56, 3, -1, 1),
    Sketcher.Constraint("Symmetric", 51, 3, 60, 3, -1, 1),
    Sketcher.Constraint("Symmetric", 49, 3, 61, 3, -1, 1),
    Sketcher.Constraint("Symmetric", 44, 3, 62, 3, -1, 1),
    Sketcher.Constraint("Symmetric", 52, 3, 63, 3, -1, 1),
    Sketcher.Constraint("Symmetric", 48, 3, 64, 3, -1, 1),
    Sketcher.Constraint("Symmetric", 43, 3, 65, 3, -1, 1),
    Sketcher.Constraint("Symmetric", 40, 3, 66, 3, -1, 1),
    Sketcher.Constraint("Symmetric", 19, 3, 20, 3, -2),
    Sketcher.Constraint("Symmetric", 18, 3, 21, 3, -2),
    Sketcher.Constraint("Symmetric", 15, 3, 24, 3, -2),
    Sketcher.Constraint("Symmetric", 14, 3, 25, 3, -2),
    Sketcher.Constraint("Symmetric", 13, 3, 26, 3, -2),
    Sketcher.Constraint("Symmetric", 12, 3, 27, 3, -2),
    Sketcher.Constraint("Symmetric", 11, 3, 28, 3, -2),
    Sketcher.Constraint("Symmetric", 10, 3, 29, 3, -2),
    Sketcher.Constraint("Symmetric", 43, 3, 48, 3, -2),
    Sketcher.Constraint("Symmetric", 44, 3, 49, 3, -2),
    Sketcher.Constraint("Symmetric", 41, 3, 51, 3, -2),
    Sketcher.Constraint("Symmetric", 40, 3, 52, 3, -2),
    Sketcher.Constraint("Symmetric", 55, 3, 57, 3, -2),
    Sketcher.Constraint("Symmetric", 58, 3, 59, 3, -2),
    Sketcher.Constraint("PointOnObject", 7, 3, -1),
    Sketcher.Constraint("PointOnObject", 8, 3, -1),
    Sketcher.Constraint("PointOnObject", 9, 3, -1),
    Sketcher.Constraint("PointOnObject", 17, 3, -1),
    Sketcher.Constraint("PointOnObject", 42, 3, -2),
    Sketcher.Constraint("PointOnObject", 46, 3, -2),
    Sketcher.Constraint("PointOnObject", 50, 3, -2),
    Sketcher.Constraint("Horizontal", 0, 3, 1, 3),
    Sketcher.Constraint("Horizontal", 1, 3, 2, 3),
    Sketcher.Constraint("Horizontal", 4, 3, 5, 3),
    Sketcher.Constraint("Horizontal", 5, 3, 6, 3),
    Sketcher.Constraint("Horizontal", 14, 3, 15, 3),
    Sketcher.Constraint("Horizontal", 6, 3, 16, 3),
    Sketcher.Constraint("Horizontal", 40, 3, 43, 3),
    Sketcher.Constraint("Horizontal", 41, 3, 44, 3),
    Sketcher.Constraint("Horizontal", 43, 3, 45, 3),
    Sketcher.Constraint("Horizontal", 44, 3, 47, 3),
    Sketcher.Constraint("Horizontal", 3, 3, 53, 3),
    Sketcher.Constraint("Horizontal", 50, 3, 55, 3),
    Sketcher.Constraint("Horizontal", 57, 3, 58, 3),
    Sketcher.Constraint("Horizontal", 67, 3, 70, 3),
    Sketcher.Constraint("Horizontal", 75, 3, 76, 3),
    Sketcher.Constraint("Vertical", 2, 3, 3, 3),
    Sketcher.Constraint("Vertical", 1, 3, 4, 3),
    Sketcher.Constraint("Vertical", 3, 3, 5, 3),
    Sketcher.Constraint("Vertical", 4, 3, 7, 3),
    Sketcher.Constraint("Vertical", 5, 3, 8, 3),
    Sketcher.Constraint("Vertical", 6, 3, 9, 3),
    Sketcher.Constraint("Vertical", 12, 3, 15, 3),
    Sketcher.Constraint("Vertical", 0, 3, 16, 3),
    Sketcher.Constraint("Vertical", 16, 3, 17, 3),
    Sketcher.Constraint("Vertical", 40, 3, 41, 3),
    Sketcher.Constraint("Vertical", 43, 3, 44, 3),
    Sketcher.Constraint("Vertical", 15, 3, 53, 3),
    Sketcher.Constraint("Vertical", 53, 3, 54, 3),
    Sketcher.Constraint("Vertical", 52, 3, 55, 3),
    Sketcher.Constraint("Vertical", 44, 3, 58, 3),
    Sketcher.Constraint("Vertical", 14, 3, 67, 3),
    Sketcher.Constraint("Vertical", 68, 3, 73, 3),
    Sketcher.Constraint("Vertical", 70, 3, 78, 3),
    Sketcher.Constraint("Vertical", 66, 3, 80, 3),
    Sketcher.Constraint("Diameter", 0, Q("4.5 mm")),
    Sketcher.Constraint("DistanceX", 0, 3, -1, 1, Q("65 mm")),
    Sketcher.Constraint("DistanceY", 0, 3, -1, 1, Q("18 mm")),
    Sketcher.Constraint("DistanceX", 1, 3, -1, 1, Q("56 mm")),
    Sketcher.Constraint("DistanceX", 2, 3, -1, 1, Q("47 mm")),
    Sketcher.Constraint("DistanceY", -1, 1, 3, 3, Q("27 mm")),
    Sketcher.Constraint("DistanceY", 4, 3, -1, 1, Q("9 mm")),
    Sketcher.Constraint("DistanceX", 6, 3, -1, 1, Q("38 mm")),
    Sketcher.Constraint("DistanceX", 40, 3, -1, 1, Q("18 mm")),
    Sketcher.Constraint("DistanceY", 40, 3, -1, 1, Q("65 mm")),
    Sketcher.Constraint("DistanceY", 41, 3, -1, 1, Q("54 mm")),
    Sketcher.Constraint("DistanceX", 43, 3, -1, 1, Q("9 mm")),
    Sketcher.Constraint("DistanceY", -1, 1, 50, 3, Q("43 mm")),
    Sketcher.Constraint("DistanceY", -1, 1, 54, 3, Q("39 mm")),
    Sketcher.Constraint("DistanceY", 67, 3, -1, 1, Q("29 mm")),
    Sketcher.Constraint("DistanceY", 72, 3, -1, 1, Q("26.75 mm")),
    Sketcher.Constraint("DistanceX", -1, 1, 69, 3, Q("29.05544 mm")),
    Sketcher.Constraint("DistanceY", 69, 3, -1, 1, Q("27.077208 mm")),
    Sketcher.Constraint("DistanceY", 71, 3, -1, 1, Q("39.078942 mm")),
    Sketcher.Constraint("DistanceX", -1, 1, 72, 3, Q("50.330491 mm")),
    Sketcher.Constraint("DistanceX", -1, 1, 74, 3, Q("26.881648 mm")),
    Sketcher.Constraint("DistanceY", 74, 3, -1, 1, Q("49.967059 mm")),
    Sketcher.Constraint("DistanceY", -1, 1, 75, 3, Q("27.890342 mm")),
    Sketcher.Constraint("DistanceY", -1, 1, 78, 3, Q("36.59473 mm")),
    Sketcher.Constraint("DistanceX", 79, 3, -1, 1, Q("19.36598 mm")),
    Sketcher.Constraint("DistanceY", 79, 3, -1, 1, Q("41.877769 mm")),
    Sketcher.Constraint("DistanceY", 80, 3, -1, 1, Q("43.458879 mm")),
    Sketcher.Constraint("DistanceX", 81, 3, -1, 1, Q("39.54107 mm")),
    Sketcher.Constraint("DistanceX", 68, 3, -1, 1, Q("29.199766 mm")),
    Sketcher.Constraint("DistanceY", -1, 1, 68, 3, Q("48.112063 mm")),
    Sketcher.Constraint("DistanceX", -1, 1, 70, 3, Q("39.889057 mm")),
    Sketcher.Constraint("DistanceX", -1, 1, 71, 3, Q("37.639057 mm")),
    Sketcher.Constraint("DistanceY", 73, 3, -1, 1, Q("47.904784 mm")),
    Sketcher.Constraint("DistanceX", -1, 1, 75, 3, Q("33.351003 mm")),
    Sketcher.Constraint("DistanceX", -1, 1, 76, 3, Q("49.282846 mm")),
    Sketcher.Constraint("DistanceX", -1, 1, 77, 3, Q("30.654147 mm")),
    Sketcher.Constraint("DistanceY", -1, 1, 77, 3, Q("46.463726 mm")),
    Sketcher.Constraint("DistanceY", 81, 3, -1, 1, Q("37.261976 mm")),
])
pocket6 = body.newObject("PartDesign::Pocket", "Pocket005")
pocket6.Profile = sketch9
pocket6.Type = "ThroughAll"
pocket6.Reversed = True
doc.recompute()

fillet = body.newObject("PartDesign::Fillet", "Fillet")
fillet.Base = (pocket6, edges_at(pocket6, [
    (70, 1.5, 22.616),
    (22.616, 1.5, 70),
    (-22.616, 1.5, 70),
    (-70, 1.5, 22.616),
    (-70, 1.5, -22.616),
    (-22.616, 1.5, -70),
    (22.616, 1.5, -70),
    (70, 1.5, -22.616),
]))
fillet.Radius = 6

sketch10 = body.newObject("Sketcher::SketchObject", "Sketch009")
sketch10.AttachmentSupport = (doc.getObject("XZ_Plane"), [""])
sketch10.MapMode = "FlatFace"
sketch10.AttachmentOffset = App.Placement(Vector(0, 0, -3), App.Rotation())
sketch10.addGeometry([
    Part.LineSegment(Vector(-15, -8, 0), Vector(-15, 22, 0)),
    Part.LineSegment(Vector(-15, 22, 0), Vector(15, 22, 0)),
    Part.LineSegment(Vector(15, 22, 0), Vector(15, -8, 0)),
    Part.LineSegment(Vector(15, -8, 0), Vector(-15, -8, 0)),
    Part.LineSegment(Vector(-7, -38, 0), Vector(-7, -18, 0)),
    Part.LineSegment(Vector(-7, -18, 0), Vector(7, -18, 0)),
    Part.LineSegment(Vector(7, -18, 0), Vector(7, -38, 0)),
    Part.LineSegment(Vector(7, -38, 0), Vector(-7, -38, 0)),
], False)
sketch10.addConstraint([
    Sketcher.Constraint("Coincident", 0, 2, 1, 1),
    Sketcher.Constraint("Coincident", 1, 2, 2, 1),
    Sketcher.Constraint("Coincident", 2, 2, 3, 1),
    Sketcher.Constraint("Coincident", 3, 2, 0, 1),
    Sketcher.Constraint("Coincident", 4, 2, 5, 1),
    Sketcher.Constraint("Coincident", 5, 2, 6, 1),
    Sketcher.Constraint("Coincident", 6, 2, 7, 1),
    Sketcher.Constraint("Coincident", 7, 2, 4, 1),
    Sketcher.Constraint("Vertical", 0),
    Sketcher.Constraint("Horizontal", 1),
    Sketcher.Constraint("Vertical", 2),
    Sketcher.Constraint("Horizontal", 3),
    Sketcher.Constraint("Vertical", 4),
    Sketcher.Constraint("Horizontal", 5),
    Sketcher.Constraint("Vertical", 6),
    Sketcher.Constraint("Horizontal", 7),
    Sketcher.Constraint("Equal", 3, 0),
    Sketcher.Constraint("DistanceX", 5, 1, 5, 2, Q("14 mm")),
    Sketcher.Constraint("DistanceY", 4, 1, 4, 2, Q("19 mm")),
    Sketcher.Constraint("DistanceX", 1, 1, 1, 2, Q("30.5 mm")),
    Sketcher.Constraint("DistanceY", 2, 2, -1, 1, Q("8 mm")),
    Sketcher.Constraint("DistanceX", 4, 2, -1, 1, Q("7 mm")),
    Sketcher.Constraint("DistanceY", 4, 2, 0, 2, Q("41 mm")),
    Sketcher.Constraint("DistanceX", 0, 2, -1, 1, Q("15.25 mm")),
])
pocket7 = body.newObject("PartDesign::Pocket", "Pocket006")
pocket7.Profile = sketch10
pocket7.Type = "ThroughAll"
pocket7.Reversed = True

doc.recompute()
